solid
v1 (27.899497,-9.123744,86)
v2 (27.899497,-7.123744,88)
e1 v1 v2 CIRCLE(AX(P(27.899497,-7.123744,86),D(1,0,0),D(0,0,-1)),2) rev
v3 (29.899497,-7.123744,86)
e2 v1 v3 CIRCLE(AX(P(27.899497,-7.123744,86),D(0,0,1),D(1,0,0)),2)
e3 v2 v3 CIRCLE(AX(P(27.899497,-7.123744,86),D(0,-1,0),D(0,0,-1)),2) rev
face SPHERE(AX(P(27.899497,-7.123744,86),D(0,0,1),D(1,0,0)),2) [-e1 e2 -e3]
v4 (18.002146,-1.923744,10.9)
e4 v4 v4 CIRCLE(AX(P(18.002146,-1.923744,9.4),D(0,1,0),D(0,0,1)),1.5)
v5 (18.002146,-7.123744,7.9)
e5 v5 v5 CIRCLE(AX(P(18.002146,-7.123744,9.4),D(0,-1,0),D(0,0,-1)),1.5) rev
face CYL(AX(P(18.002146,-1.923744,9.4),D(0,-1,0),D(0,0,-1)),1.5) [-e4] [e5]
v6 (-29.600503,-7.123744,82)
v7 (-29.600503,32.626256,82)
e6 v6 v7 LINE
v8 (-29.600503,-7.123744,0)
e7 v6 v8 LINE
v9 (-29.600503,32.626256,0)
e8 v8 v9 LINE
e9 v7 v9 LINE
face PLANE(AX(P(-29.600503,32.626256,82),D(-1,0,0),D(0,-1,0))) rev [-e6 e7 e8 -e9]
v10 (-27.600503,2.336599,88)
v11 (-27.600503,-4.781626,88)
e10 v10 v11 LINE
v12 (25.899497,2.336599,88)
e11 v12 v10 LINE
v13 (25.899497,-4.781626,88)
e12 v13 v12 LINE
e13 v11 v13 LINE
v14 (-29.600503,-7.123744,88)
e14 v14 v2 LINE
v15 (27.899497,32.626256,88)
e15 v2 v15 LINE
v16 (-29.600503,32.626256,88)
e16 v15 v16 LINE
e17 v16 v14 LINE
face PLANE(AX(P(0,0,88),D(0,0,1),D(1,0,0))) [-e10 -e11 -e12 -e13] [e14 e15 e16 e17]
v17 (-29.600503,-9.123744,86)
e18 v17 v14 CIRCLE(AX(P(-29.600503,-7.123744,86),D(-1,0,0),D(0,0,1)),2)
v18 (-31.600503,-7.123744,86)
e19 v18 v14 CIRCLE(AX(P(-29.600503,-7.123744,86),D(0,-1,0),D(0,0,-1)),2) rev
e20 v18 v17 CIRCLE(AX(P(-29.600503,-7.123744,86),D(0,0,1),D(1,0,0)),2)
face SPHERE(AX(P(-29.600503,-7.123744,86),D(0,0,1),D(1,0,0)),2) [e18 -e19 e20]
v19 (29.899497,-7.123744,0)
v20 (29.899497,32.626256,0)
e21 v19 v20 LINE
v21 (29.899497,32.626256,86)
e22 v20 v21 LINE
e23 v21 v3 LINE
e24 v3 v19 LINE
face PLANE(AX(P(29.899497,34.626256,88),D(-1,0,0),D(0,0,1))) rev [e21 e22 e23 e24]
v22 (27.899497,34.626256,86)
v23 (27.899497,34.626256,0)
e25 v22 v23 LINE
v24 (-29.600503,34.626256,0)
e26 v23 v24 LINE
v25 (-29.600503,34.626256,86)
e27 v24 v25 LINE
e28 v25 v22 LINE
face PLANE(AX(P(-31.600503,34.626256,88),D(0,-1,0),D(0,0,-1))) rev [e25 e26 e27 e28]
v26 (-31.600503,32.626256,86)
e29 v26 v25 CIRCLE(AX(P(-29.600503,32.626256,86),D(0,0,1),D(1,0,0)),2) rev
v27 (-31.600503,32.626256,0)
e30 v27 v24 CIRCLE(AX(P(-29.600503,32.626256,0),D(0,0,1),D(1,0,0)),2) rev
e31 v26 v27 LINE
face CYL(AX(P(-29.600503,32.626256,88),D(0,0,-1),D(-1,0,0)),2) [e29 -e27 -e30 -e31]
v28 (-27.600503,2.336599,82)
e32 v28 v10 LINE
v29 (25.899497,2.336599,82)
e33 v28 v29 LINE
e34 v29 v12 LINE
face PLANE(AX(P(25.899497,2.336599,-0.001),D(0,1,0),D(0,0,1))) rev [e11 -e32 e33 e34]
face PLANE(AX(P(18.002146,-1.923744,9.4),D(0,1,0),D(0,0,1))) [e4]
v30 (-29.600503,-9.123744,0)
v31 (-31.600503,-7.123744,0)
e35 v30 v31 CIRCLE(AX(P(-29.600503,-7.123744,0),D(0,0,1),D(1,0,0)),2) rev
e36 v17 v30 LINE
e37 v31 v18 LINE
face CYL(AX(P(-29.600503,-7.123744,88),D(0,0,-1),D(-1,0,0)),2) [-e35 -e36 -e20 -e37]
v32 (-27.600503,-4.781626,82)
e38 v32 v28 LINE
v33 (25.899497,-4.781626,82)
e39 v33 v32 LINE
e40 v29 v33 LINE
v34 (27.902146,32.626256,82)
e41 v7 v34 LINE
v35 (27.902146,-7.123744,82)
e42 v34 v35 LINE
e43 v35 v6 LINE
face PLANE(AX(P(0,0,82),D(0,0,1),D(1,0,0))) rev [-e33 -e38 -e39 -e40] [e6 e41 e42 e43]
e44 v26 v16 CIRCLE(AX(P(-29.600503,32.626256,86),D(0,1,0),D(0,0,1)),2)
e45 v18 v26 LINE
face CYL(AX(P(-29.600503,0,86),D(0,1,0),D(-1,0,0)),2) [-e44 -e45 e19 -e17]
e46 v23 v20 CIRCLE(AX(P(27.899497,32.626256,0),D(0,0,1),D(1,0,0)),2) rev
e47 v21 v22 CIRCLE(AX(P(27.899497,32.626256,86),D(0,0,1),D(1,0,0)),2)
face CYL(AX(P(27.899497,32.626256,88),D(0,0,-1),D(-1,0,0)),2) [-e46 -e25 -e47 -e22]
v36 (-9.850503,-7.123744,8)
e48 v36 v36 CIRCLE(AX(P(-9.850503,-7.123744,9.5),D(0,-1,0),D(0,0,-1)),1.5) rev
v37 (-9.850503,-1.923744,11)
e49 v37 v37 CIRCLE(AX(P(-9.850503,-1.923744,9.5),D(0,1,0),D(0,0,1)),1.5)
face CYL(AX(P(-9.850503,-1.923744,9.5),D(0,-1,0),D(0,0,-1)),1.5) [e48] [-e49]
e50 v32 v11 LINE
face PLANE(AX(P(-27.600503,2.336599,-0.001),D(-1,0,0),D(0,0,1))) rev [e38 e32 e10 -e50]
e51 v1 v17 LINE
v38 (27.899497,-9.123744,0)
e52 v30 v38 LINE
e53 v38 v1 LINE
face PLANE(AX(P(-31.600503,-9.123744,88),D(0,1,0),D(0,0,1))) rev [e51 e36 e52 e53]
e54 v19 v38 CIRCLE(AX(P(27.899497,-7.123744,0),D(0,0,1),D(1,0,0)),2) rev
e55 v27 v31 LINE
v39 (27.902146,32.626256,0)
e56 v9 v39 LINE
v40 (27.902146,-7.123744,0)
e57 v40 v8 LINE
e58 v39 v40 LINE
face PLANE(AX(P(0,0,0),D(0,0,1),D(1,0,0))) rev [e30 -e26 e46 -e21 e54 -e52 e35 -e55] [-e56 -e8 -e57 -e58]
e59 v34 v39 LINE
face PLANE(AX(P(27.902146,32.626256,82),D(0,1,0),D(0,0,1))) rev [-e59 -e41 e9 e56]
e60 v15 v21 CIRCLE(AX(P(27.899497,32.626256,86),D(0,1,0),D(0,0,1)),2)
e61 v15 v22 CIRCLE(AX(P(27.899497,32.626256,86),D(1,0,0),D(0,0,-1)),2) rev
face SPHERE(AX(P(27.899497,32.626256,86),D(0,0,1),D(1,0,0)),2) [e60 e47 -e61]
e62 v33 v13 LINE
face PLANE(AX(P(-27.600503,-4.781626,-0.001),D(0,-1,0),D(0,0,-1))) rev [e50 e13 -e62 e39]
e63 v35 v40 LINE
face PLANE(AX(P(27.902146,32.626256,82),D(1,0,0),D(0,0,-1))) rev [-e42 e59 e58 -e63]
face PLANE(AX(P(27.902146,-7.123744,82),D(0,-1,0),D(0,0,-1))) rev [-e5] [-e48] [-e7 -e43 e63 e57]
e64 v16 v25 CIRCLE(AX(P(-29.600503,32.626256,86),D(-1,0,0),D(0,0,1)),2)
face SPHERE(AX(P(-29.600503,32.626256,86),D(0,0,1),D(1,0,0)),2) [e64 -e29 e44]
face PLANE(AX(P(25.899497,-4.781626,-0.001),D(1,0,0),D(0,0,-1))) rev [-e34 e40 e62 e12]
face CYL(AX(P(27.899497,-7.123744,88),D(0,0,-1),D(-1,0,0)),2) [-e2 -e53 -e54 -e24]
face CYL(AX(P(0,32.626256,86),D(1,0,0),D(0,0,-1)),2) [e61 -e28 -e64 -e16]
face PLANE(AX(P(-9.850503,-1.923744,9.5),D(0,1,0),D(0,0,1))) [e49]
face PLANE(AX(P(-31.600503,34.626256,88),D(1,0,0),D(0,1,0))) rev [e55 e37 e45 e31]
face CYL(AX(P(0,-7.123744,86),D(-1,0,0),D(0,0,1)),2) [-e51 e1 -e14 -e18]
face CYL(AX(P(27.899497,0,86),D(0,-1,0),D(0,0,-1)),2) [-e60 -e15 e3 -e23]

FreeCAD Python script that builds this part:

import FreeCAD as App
import Part
import Sketcher

V = App.Vector
Q = App.Units.Quantity


def edges_at(feature, points):
    """Names of the edges that pass closest to the given points."""
    edges = feature.Shape.Edges
    near = lambda p: min(range(len(edges)), key=lambda i: edges[i].distToShape(Part.Vertex(*p))[0])
    return sorted({f"Edge{near(p) + 1}" for p in points})


def add_polygon(sketch, points):
    """Adds a closed chain of lines whose ends are joined by coincident constraints."""
    first, n = sketch.GeometryCount, len(points)
    for a, b in zip(points, points[1:] + points[:1]):
        sketch.addGeometry(Part.LineSegment(App.Vector(*a, 0), App.Vector(*b, 0)), False)
    for i in range(n):
        sketch.addConstraint(Sketcher.Constraint("Coincident", first + i, 2, first + (i + 1) % n, 1))

doc = App.newDocument("Part")
body = doc.addObject("PartDesign::Body", "Body")

# Sketch on XY plane
sketch1 = doc.addObject("Sketcher::SketchObject", "Sketch")
body.addObject(sketch1)
sketch1.AttachmentSupport = (doc.XY_Plane, [""])
sketch1.MapMode = "FlatFace"
add_polygon(sketch1, [(-32, 35), (-32, -9), (30, -9), (30, 35)])  # lines 0-3
sketch1.addConstraint(Sketcher.Constraint("Vertical", 0))
sketch1.addConstraint(Sketcher.Constraint("Horizontal", 1))
sketch1.addConstraint(Sketcher.Constraint("Vertical", 2))
sketch1.addConstraint(Sketcher.Constraint("Horizontal", 3))
sketch1.addConstraint(Sketcher.Constraint("DistanceX", 1, 1, 1, 2, Q("61.5 mm")))
sketch1.addConstraint(Sketcher.Constraint("DistanceY", 0, 2, 0, 1, Q("43.75 mm")))
sketch1.addConstraint(Sketcher.Constraint("DistanceX", 0, 2, -1, 1, Q("31.600503 mm")))
sketch1.addConstraint(Sketcher.Constraint("DistanceY", 0, 2, -1, 1, Q("9.123744 mm")))
pad1 = doc.addObject("PartDesign::Pad", "Pad")
body.addObject(pad1)
pad1.Profile = sketch1
pad1.Length = 88

# Sketch on XY plane
sketch2 = doc.addObject("Sketcher::SketchObject", "Sketch001")
body.addObject(sketch2)
sketch2.AttachmentSupport = (doc.XY_Plane, [""])
sketch2.MapMode = "FlatFace"
sketch2.AttachmentOffset = App.Placement(V(0, 0, 88), App.Rotation())
add_polygon(sketch2, [(-28, 2), (-28, -5), (26, -5), (26, 2)])  # lines 0-3
sketch2.addConstraint(Sketcher.Constraint("Vertical", 0))
sketch2.addConstraint(Sketcher.Constraint("Horizontal", 1))
sketch2.addConstraint(Sketcher.Constraint("Vertical", 2))
sketch2.addConstraint(Sketcher.Constraint("Horizontal", 3))
sketch2.addConstraint(Sketcher.Constraint("DistanceX", 1, 1, 1, 2, Q("53.5 mm")))
sketch2.addConstraint(Sketcher.Constraint("DistanceY", -1, 1, 2, 2, Q("2.336599 mm")))
sketch2.addConstraint(Sketcher.Constraint("DistanceY", 0, 2, 0, 1, Q("7.118225 mm")))
sketch2.addConstraint(Sketcher.Constraint("DistanceX", 0, 2, -1, 1, Q("27.600503 mm")))
pocket1 = doc.addObject("PartDesign::Pocket", "Pocket")
body.addObject(pocket1)
pocket1.Profile = sketch2
pocket1.Type = "UpToFirst"

# Sketch on XY plane
sketch3 = doc.addObject("Sketcher::SketchObject", "Sketch002")
body.addObject(sketch3)
sketch3.AttachmentSupport = (doc.XY_Plane, [""])
sketch3.MapMode = "FlatFace"
add_polygon(sketch3, [(28, 33), (28, -7), (-30, -7), (-30, 33)])  # lines 0-3
sketch3.addConstraint(Sketcher.Constraint("Vertical", 0))
sketch3.addConstraint(Sketcher.Constraint("Horizontal", 1))
sketch3.addConstraint(Sketcher.Constraint("Vertical", 2))
sketch3.addConstraint(Sketcher.Constraint("Horizontal", 3))
sketch3.addConstraint(Sketcher.Constraint("DistanceY", 0, 2, 0, 1, Q("39.75 mm")))
sketch3.addConstraint(Sketcher.Constraint("DistanceX", 1, 2, 1, 1, Q("57.502648 mm")))
sketch3.addConstraint(Sketcher.Constraint("DistanceX", -1, 1, 0, 2, Q("27.902146 mm")))
sketch3.addConstraint(Sketcher.Constraint("DistanceY", 0, 2, -1, 1, Q("7.123744 mm")))
pocket2 = doc.addObject("PartDesign::Pocket", "Pocket001")
body.addObject(pocket2)
pocket2.Profile = sketch3
pocket2.Length = 82
pocket2.Reversed = True
doc.recompute()

fillet = doc.addObject("PartDesign::Fillet", "Fillet")
body.addObject(fillet)
fillet.Base = (pocket2, edges_at(pocket2, [
    (29.899, 12.751, 88),
    (-0.851, 34.626, 88),
    (-31.601, 12.751, 88),
    (-31.601, 34.626, 44),
    (29.899, 34.626, 44),
    (29.899, -9.124, 44),
    (-31.601, -9.124, 44),
    (-0.851, -9.124, 88),
]))
fillet.Radius = 2

# Sketch on XZ plane
sketch4 = doc.addObject("Sketcher::SketchObject", "Sketch003")
body.addObject(sketch4)
sketch4.AttachmentSupport = (doc.XZ_Plane, [""])
sketch4.MapMode = "FlatFace"
sketch4.AttachmentOffset = App.Placement(V(0, 0, 7.123744), App.Rotation())
sketch4.addGeometry(Part.Circle(V(18, 9.4, 0), V(0, 0, 1), 1.5), False)
sketch4.addConstraint(Sketcher.Constraint("Diameter", 0, Q("3 mm")))
sketch4.addConstraint(Sketcher.Constraint("DistanceY", -1, 1, 0, 3, Q("9.4 mm")))
sketch4.addConstraint(Sketcher.Constraint("DistanceX", -1, 1, 0, 3, Q("18.002146 mm")))
pad2 = doc.addObject("PartDesign::Pad", "Pad001")
body.addObject(pad2)
pad2.Profile = sketch4
pad2.Length = 5.2
pad2.Reversed = True

# Sketch on XZ plane
sketch5 = doc.addObject("Sketcher::SketchObject", "Sketch004")
body.addObject(sketch5)
sketch5.AttachmentSupport = (doc.XZ_Plane, [""])
sketch5.MapMode = "FlatFace"
sketch5.AttachmentOffset = App.Placement(V(0, 0, 7.123744), App.Rotation())
sketch5.addGeometry(Part.Circle(V(-9.9, 9.5, 0), V(0, 0, 1), 1.5), False)
sketch5.addConstraint(Sketcher.Constraint("Diameter", 0, Q("3 mm")))
sketch5.addConstraint(Sketcher.Constraint("DistanceY", -1, 1, 0, 3, Q("9.5 mm")))
sketch5.addConstraint(Sketcher.Constraint("DistanceX", 0, 3, -1, 1, Q("9.850503 mm")))
pad3 = doc.addObject("PartDesign::Pad", "Pad002")
body.addObject(pad3)
pad3.Profile = sketch5
pad3.Length = 5.2
pad3.Reversed = True

doc.recompute()
